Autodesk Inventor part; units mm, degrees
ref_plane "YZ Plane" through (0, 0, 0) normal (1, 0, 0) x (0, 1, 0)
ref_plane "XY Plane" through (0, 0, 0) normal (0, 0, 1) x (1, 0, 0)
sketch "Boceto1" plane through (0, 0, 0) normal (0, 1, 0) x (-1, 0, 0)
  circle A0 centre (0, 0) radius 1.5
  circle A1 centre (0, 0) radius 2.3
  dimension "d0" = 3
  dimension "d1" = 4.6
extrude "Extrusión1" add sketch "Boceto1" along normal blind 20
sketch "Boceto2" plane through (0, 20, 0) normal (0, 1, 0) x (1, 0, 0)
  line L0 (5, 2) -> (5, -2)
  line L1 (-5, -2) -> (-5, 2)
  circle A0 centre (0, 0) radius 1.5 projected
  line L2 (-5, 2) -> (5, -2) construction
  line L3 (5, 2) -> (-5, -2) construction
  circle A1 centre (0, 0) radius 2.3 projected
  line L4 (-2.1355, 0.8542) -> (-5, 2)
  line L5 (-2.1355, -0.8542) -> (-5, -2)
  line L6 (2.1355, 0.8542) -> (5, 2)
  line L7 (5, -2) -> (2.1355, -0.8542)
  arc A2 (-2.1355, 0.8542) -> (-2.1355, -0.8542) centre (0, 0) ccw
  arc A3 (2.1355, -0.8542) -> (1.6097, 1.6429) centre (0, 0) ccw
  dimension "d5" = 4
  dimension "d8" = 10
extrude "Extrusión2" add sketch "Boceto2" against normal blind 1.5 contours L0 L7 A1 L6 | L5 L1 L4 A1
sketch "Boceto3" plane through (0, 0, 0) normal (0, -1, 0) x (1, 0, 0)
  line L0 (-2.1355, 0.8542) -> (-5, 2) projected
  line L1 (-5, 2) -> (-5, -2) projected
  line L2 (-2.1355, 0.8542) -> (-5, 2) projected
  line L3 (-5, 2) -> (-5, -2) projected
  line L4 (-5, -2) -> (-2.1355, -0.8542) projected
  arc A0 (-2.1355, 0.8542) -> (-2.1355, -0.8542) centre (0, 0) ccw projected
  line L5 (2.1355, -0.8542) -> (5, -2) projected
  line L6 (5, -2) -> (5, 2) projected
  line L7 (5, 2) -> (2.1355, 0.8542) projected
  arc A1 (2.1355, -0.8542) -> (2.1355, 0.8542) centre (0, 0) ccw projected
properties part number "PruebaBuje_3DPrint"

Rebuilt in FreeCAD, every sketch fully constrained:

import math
import FreeCAD as App
import Part
import Sketcher

doc = App.newDocument("Part")
body = doc.addObject("PartDesign::Body", "Body")

sketch1 = doc.addObject("Sketcher::SketchObject", "Sketch")
body.addObject(sketch1)
sketch1.AttachmentSupport = (doc.XZ_Plane, [""])
sketch1.MapMode = "FlatFace"
sketch1.addGeometry([
    Part.Circle(App.Vector(0, 0, 0), App.Vector(0, 0, 1), 2.3),
    Part.Circle(App.Vector(0, 0, 0), App.Vector(0, 0, 1), 1.5),
], False)
sketch1.addConstraint([
    Sketcher.Constraint("Coincident", 0, 3, -1, 1),
    Sketcher.Constraint("Coincident", 1, 3, -1, 1),
    Sketcher.Constraint("Diameter", 1, 3.0),
    Sketcher.Constraint("Diameter", 0, 4.6),
])
pad1 = doc.addObject("PartDesign::Pad", "Pad")
body.addObject(pad1)
pad1.Profile = sketch1
pad1.Length = 20
pad1.Reversed = True

sketch2 = doc.addObject("Sketcher::SketchObject", "Sketch001")
body.addObject(sketch2)
sketch2.AttachmentSupport = (doc.XZ_Plane, [""])
sketch2.MapMode = "FlatFace"
sketch2.AttachmentOffset = App.Placement(App.Vector(0, 0, -20), App.Rotation())
sketch2.addGeometry([
    Part.LineSegment(App.Vector(5, 2, 0), App.Vector(5, -2, 0)),
    Part.LineSegment(App.Vector(5, -2, 0), App.Vector(2.1, -0.9, 0)),
    Part.ArcOfCircle(Part.Circle(App.Vector(0, 0, 0), App.Vector(0, 0, 1), 2.3), math.radians(-22), math.radians(22)),
    Part.LineSegment(App.Vector(2.1, 0.9, 0), App.Vector(5, 2, 0)),
    Part.LineSegment(App.Vector(-5, 2, 0), App.Vector(-2.1, 0.9, 0)),
    Part.ArcOfCircle(Part.Circle(App.Vector(0, 0, 0), App.Vector(0, 0, 1), 2.3), math.radians(158), math.radians(202)),
    Part.LineSegment(App.Vector(-2.1, -0.9, 0), App.Vector(-5, -2, 0)),
    Part.LineSegment(App.Vector(-5, -2, 0), App.Vector(-5, 2, 0)),
], False)
sketch2.addConstraint([
    Sketcher.Constraint("Coincident", 0, 2, 1, 1),
    Sketcher.Constraint("Coincident", 1, 2, 2, 1),
    Sketcher.Constraint("Coincident", 2, 2, 3, 1),
    Sketcher.Constraint("Coincident", 3, 2, 0, 1),
    Sketcher.Constraint("Coincident", 4, 2, 5, 1),
    Sketcher.Constraint("Coincident", 5, 2, 6, 1),
    Sketcher.Constraint("Coincident", 6, 2, 7, 1),
    Sketcher.Constraint("Coincident", 7, 2, 4, 1),
    Sketcher.Constraint("Vertical", 0),
    Sketcher.Constraint("Vertical", 7),
    Sketcher.Constraint("Coincident", 2, 3, -1, 1),
    Sketcher.Constraint("Coincident", 5, 3, -1, 1),
    Sketcher.Constraint("Equal", 2, 5),
    Sketcher.Constraint("Symmetric", 3, 2, 6, 2, -1, 1),
    Sketcher.Constraint("Parallel", 1, 4),
    Sketcher.Constraint("Parallel", 3, 6),
    Sketcher.Constraint("Horizontal", 2, 2, 4, 2),
    Sketcher.Constraint("Horizontal", 1, 2, 5, 2),
    Sketcher.Constraint("Horizontal", 0, 2, 6, 2),
    Sketcher.Constraint("DistanceY", 0, 2, 0, 1, 4.0),
    Sketcher.Constraint("Radius", 2, 2.3),
    Sketcher.Constraint("DistanceX", -1, 1, 0, 2, 5.0),
    Sketcher.Constraint("DistanceX", 4, 2, 2, 2, 4.271),
])
pad2 = doc.addObject("PartDesign::Pad", "Pad001")
body.addObject(pad2)
pad2.Profile = sketch2
pad2.Length = 1.5

doc.recompute()
